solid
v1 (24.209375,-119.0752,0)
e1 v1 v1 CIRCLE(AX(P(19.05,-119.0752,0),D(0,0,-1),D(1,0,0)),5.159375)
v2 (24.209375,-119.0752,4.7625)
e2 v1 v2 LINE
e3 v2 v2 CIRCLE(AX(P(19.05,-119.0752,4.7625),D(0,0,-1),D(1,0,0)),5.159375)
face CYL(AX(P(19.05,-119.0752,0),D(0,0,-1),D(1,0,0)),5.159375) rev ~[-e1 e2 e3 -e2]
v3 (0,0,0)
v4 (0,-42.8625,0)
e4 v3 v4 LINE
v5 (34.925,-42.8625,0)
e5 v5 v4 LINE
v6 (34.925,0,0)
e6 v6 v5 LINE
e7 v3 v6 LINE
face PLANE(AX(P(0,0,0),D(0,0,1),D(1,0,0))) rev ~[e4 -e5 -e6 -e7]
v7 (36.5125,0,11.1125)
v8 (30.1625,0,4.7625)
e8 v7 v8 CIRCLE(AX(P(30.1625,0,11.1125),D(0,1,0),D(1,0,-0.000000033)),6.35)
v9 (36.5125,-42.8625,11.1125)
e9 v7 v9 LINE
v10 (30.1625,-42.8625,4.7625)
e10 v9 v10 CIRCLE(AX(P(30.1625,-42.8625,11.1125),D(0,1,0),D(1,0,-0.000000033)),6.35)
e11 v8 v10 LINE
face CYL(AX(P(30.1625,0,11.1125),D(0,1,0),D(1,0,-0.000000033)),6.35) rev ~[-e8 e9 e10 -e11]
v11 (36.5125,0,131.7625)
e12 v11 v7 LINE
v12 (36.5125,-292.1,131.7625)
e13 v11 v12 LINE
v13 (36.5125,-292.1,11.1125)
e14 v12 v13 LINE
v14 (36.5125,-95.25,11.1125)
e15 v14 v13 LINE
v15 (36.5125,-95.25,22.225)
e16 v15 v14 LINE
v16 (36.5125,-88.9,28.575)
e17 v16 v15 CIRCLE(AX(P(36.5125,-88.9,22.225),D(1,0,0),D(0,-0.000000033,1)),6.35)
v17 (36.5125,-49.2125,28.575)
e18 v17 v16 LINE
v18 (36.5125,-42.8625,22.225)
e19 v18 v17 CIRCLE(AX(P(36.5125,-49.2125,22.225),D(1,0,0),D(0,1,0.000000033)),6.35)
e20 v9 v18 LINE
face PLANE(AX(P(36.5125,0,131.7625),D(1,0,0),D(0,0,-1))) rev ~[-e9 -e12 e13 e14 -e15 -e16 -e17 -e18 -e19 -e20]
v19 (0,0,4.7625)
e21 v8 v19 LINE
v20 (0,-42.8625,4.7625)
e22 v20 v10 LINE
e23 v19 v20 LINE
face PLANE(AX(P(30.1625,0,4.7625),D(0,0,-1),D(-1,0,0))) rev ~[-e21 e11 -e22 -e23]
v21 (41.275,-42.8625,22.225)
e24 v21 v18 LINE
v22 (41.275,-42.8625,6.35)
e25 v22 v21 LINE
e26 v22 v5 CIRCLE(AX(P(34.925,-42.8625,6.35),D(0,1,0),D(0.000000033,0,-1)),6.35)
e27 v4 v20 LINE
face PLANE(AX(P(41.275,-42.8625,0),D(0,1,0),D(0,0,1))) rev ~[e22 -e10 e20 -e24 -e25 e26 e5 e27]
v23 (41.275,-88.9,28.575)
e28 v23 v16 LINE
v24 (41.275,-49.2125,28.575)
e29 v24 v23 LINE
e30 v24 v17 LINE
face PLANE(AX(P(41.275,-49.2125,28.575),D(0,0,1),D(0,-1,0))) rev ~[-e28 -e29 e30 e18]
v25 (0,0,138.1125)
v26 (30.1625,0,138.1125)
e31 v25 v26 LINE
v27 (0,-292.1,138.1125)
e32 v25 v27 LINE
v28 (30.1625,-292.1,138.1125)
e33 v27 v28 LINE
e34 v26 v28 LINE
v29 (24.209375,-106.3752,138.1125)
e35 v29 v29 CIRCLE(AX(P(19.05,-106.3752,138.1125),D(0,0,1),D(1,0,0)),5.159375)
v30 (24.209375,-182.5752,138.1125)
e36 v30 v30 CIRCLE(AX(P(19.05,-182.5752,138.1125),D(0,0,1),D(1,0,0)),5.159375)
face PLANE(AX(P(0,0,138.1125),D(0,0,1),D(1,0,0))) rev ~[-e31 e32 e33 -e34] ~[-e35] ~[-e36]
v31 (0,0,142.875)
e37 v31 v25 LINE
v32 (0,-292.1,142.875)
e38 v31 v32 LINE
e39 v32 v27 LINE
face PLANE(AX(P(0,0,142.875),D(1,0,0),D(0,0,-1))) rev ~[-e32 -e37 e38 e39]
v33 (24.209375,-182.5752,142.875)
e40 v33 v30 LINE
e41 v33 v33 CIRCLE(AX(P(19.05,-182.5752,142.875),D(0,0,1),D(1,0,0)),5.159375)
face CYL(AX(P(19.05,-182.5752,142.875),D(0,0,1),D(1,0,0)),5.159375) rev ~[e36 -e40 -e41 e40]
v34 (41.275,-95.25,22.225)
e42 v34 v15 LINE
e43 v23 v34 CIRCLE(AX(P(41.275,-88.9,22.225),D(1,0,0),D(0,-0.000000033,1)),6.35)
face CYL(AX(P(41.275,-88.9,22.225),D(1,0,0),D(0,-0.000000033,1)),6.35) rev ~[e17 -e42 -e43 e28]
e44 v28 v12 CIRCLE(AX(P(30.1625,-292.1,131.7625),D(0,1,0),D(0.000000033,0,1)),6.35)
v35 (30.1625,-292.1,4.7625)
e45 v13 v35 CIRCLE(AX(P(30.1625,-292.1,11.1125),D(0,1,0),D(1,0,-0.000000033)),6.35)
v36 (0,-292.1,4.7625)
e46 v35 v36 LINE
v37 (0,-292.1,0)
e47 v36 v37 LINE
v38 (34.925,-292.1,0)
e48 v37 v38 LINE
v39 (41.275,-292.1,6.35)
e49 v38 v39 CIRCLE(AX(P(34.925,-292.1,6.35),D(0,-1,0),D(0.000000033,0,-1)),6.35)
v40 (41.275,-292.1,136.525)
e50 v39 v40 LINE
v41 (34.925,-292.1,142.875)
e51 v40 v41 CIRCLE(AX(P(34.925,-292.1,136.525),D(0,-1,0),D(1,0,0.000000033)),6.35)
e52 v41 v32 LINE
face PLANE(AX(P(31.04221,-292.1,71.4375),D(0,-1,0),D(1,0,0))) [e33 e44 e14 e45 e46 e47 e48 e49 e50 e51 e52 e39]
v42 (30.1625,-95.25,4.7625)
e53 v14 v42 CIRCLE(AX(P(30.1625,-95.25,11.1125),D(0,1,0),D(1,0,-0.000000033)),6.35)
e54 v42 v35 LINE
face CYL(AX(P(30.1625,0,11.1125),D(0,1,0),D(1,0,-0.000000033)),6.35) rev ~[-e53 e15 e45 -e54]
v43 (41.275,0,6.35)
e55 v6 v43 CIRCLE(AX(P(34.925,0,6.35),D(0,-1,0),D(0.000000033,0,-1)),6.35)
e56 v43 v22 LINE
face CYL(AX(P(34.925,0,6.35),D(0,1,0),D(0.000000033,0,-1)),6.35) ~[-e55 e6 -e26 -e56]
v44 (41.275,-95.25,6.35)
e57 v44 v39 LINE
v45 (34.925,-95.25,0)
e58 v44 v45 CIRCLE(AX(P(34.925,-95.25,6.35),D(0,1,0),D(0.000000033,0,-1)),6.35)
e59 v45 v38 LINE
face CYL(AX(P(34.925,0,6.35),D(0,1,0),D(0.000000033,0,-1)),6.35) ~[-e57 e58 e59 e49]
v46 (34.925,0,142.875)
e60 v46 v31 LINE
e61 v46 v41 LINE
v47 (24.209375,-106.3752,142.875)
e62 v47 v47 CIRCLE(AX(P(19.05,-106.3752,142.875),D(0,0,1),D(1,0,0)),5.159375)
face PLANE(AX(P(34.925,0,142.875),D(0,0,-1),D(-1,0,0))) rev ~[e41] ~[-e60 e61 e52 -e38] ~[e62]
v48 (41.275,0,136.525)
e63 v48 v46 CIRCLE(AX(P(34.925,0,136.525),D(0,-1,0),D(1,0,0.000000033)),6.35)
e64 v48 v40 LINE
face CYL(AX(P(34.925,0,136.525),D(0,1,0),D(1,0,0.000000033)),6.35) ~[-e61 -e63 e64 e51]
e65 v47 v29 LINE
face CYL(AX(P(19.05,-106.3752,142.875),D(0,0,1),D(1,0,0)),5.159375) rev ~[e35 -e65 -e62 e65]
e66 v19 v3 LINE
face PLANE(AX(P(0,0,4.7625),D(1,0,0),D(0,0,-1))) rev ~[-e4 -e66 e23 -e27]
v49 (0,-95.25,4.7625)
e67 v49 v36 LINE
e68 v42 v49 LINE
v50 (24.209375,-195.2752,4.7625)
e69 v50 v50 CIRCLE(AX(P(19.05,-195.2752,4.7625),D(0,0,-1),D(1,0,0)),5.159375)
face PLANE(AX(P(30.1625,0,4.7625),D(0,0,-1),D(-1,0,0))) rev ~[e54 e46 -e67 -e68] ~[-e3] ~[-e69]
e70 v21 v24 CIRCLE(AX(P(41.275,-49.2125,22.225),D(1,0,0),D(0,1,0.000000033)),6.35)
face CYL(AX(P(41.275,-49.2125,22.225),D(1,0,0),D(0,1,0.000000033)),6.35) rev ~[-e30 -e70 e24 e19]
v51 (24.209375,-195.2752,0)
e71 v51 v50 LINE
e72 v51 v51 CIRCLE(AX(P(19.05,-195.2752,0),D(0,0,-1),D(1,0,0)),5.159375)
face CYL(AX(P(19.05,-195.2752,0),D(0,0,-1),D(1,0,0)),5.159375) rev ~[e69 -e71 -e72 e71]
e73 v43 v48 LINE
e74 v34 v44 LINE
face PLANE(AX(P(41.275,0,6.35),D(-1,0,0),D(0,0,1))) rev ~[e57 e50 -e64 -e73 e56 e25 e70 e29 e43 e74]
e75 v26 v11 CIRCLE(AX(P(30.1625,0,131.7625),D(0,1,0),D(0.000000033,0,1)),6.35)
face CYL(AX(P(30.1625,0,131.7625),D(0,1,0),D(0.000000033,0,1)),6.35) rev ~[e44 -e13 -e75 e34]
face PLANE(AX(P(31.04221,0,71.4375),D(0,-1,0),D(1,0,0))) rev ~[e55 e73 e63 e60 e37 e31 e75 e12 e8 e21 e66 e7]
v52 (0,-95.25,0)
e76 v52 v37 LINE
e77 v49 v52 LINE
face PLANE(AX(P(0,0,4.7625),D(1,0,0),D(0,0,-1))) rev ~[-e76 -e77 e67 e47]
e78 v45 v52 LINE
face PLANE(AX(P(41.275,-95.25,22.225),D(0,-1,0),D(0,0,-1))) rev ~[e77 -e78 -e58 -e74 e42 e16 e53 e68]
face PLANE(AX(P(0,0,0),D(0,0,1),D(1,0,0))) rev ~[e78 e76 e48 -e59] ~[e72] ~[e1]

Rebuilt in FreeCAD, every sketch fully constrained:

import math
import FreeCAD as App
import Part
import Sketcher
from FreeCAD import Vector
Q = App.Units.Quantity

doc = App.newDocument("Part")
body = doc.addObject("PartDesign::Body", "Body")

sketch1 = doc.addObject("Sketcher::SketchObject", "Sketch")
body.addObject(sketch1)
sketch1.AttachmentSupport = (doc.XZ_Plane, [""])
sketch1.MapMode = "FlatFace"
sketch1.addGeometry([
    Part.LineSegment(Vector(0, 4.8, 0), Vector(0, 0, 0)),
    Part.LineSegment(Vector(0, 0, 0), Vector(34.9, 0, 0)),
    Part.ArcOfCircle(Part.Circle(Vector(34.9, 6.4, 0), Vector(0, 0, 1), 6.4), math.radians(-90), math.radians(0)),
    Part.LineSegment(Vector(41.3, 6.3, 0), Vector(41.3, 136.5, 0)),
    Part.ArcOfCircle(Part.Circle(Vector(34.9, 136.5, 0), Vector(0, 0, 1), 6.4), math.radians(0), math.radians(90)),
    Part.LineSegment(Vector(34.9, 142.9, 0), Vector(0, 142.9, 0)),
    Part.LineSegment(Vector(0, 142.9, 0), Vector(0, 138.1, 0)),
    Part.LineSegment(Vector(0, 138.1, 0), Vector(30.2, 138.1, 0)),
    Part.ArcOfCircle(Part.Circle(Vector(30.2, 131.8, 0), Vector(0, 0, 1), 6.4), math.radians(0), math.radians(90)),
    Part.LineSegment(Vector(36.5, 131.8, 0), Vector(36.5, 11.1, 0)),
    Part.ArcOfCircle(Part.Circle(Vector(30.2, 11.1, 0), Vector(0, 0, 1), 6.4), math.radians(-90), math.radians(0)),
    Part.LineSegment(Vector(30.2, 4.8, 0), Vector(0, 4.8, 0)),
], False)
sketch1.addConstraint([
    Sketcher.Constraint("Coincident", 0, 2, 1, 1),
    Sketcher.Constraint("Tangent", 1, 2, 2, 1),
    Sketcher.Constraint("Tangent", 2, 2, 3, 1),
    Sketcher.Constraint("Tangent", 3, 2, 4, 1),
    Sketcher.Constraint("Tangent", 4, 2, 5, 1),
    Sketcher.Constraint("Coincident", 5, 2, 6, 1),
    Sketcher.Constraint("Coincident", 6, 2, 7, 1),
    Sketcher.Constraint("Tangent", 7, 2, 8, 2),
    Sketcher.Constraint("Tangent", 8, 1, 9, 1),
    Sketcher.Constraint("Tangent", 9, 2, 10, 2),
    Sketcher.Constraint("Tangent", 10, 1, 11, 1),
    Sketcher.Constraint("Coincident", 11, 2, 0, 1),
    Sketcher.Constraint("Vertical", 0),
    Sketcher.Constraint("Horizontal", 1),
    Sketcher.Constraint("Vertical", 3),
    Sketcher.Constraint("Horizontal", 5),
    Sketcher.Constraint("Vertical", 6),
    Sketcher.Constraint("Horizontal", 7),
    Sketcher.Constraint("Vertical", 9),
    Sketcher.Constraint("Horizontal", 11),
    Sketcher.Constraint("Coincident", 0, 2, -1, 1),
    Sketcher.Constraint("Equal", 2, 4),
    Sketcher.Constraint("Equal", 4, 8),
    Sketcher.Constraint("Equal", 8, 10),
    Sketcher.Constraint("PointOnObject", 5, 2, -2),
    Sketcher.Constraint("Equal", 0, 6),
    Sketcher.Constraint("Radius", 2, Q("0.25 in")),
    Sketcher.Constraint("DistanceY", 9, 2, 9, 1, Q("4.75 in")),
    Sketcher.Constraint("DistanceX", 1, 1, 1, 2, Q("1.375 in")),
    Sketcher.Constraint("DistanceX", 7, 1, 7, 2, Q("1.1875 in")),
    Sketcher.Constraint("DistanceY", 0, 2, 0, 1, Q("0.1875 in")),
])
pad1 = doc.addObject("PartDesign::Pad", "Pad")
body.addObject(pad1)
pad1.Profile = sketch1
pad1.Length = Q("11.5 in")

sketch2 = doc.addObject("Sketcher::SketchObject", "Sketch001")
body.addObject(sketch2)
sketch2.AttachmentSupport = (doc.YZ_Plane, [""])
sketch2.MapMode = "FlatFace"
sketch2.AttachmentOffset = App.Placement(Vector(0, 0, 1.625 * 25.4), App.Rotation())
sketch2.addGeometry([
    Part.LineSegment(Vector(-95, 22, 0), Vector(-95, 0, 0)),
    Part.LineSegment(Vector(-95, 0, 0), Vector(-43, 0, 0)),
    Part.LineSegment(Vector(-43, 0, 0), Vector(-43, 22, 0)),
    Part.ArcOfCircle(Part.Circle(Vector(-49, 22, 0), Vector(0, 0, 1), 6), math.radians(0), math.radians(90)),
    Part.LineSegment(Vector(-49, 29, 0), Vector(-89, 29, 0)),
    Part.ArcOfCircle(Part.Circle(Vector(-89, 22, 0), Vector(0, 0, 1), 6), math.radians(90), math.radians(180)),
], False)
sketch2.addConstraint([
    Sketcher.Constraint("Coincident", 0, 2, 1, 1),
    Sketcher.Constraint("Coincident", 1, 2, 2, 1),
    Sketcher.Constraint("Tangent", 2, 2, 3, 1),
    Sketcher.Constraint("Tangent", 3, 2, 4, 1),
    Sketcher.Constraint("Tangent", 4, 2, 5, 1),
    Sketcher.Constraint("Tangent", 5, 2, 0, 1),
    Sketcher.Constraint("Vertical", 0),
    Sketcher.Constraint("Horizontal", 1),
    Sketcher.Constraint("Vertical", 2),
    Sketcher.Constraint("Horizontal", 4),
    Sketcher.Constraint("Equal", 3, 5),
    Sketcher.Constraint("PointOnObject", 0, 2, -1),
    Sketcher.Constraint("Radius", 3, Q("0.25 in")),
    Sketcher.Constraint("DistanceX", 5, 3, -1, 1, Q("3.5 in")),
    Sketcher.Constraint("DistanceX", 1, 1, 1, 2, Q("2.0625 in")),
    Sketcher.Constraint("DistanceY", 0, 2, 0, 1, Q("0.875 in")),
])
pocket1 = doc.addObject("PartDesign::Pocket", "Pocket")
body.addObject(pocket1)
pocket1.Profile = sketch2
pocket1.Type = "ThroughAll"

sketch3 = doc.addObject("Sketcher::SketchObject", "Sketch002")
body.addObject(sketch3)
sketch3.AttachmentSupport = (doc.XY_Plane, [""])
sketch3.MapMode = "FlatFace"
sketch3.AttachmentOffset = App.Placement(Vector(0, 0, 5.625 * 25.4), App.Rotation())
sketch3.addGeometry([
    Part.Circle(Vector(19, -106, 0), Vector(0, 0, 1), 5),
    Part.Circle(Vector(19, -183, 0), Vector(0, 0, 1), 5),
], False)
sketch3.addConstraint([
    Sketcher.Constraint("Equal", 0, 1),
    Sketcher.Constraint("Vertical", 0, 3, 1, 3),
    Sketcher.Constraint("Diameter", 0, Q("0.40625 in")),
    Sketcher.Constraint("DistanceY", 1, 3, 0, 3, Q("3 in")),
    Sketcher.Constraint("DistanceX", -1, 1, 0, 3, Q("0.75 in")),
    Sketcher.Constraint("DistanceY", 0, 3, -1, 1, Q("4.188 in")),
])
pocket2 = doc.addObject("PartDesign::Pocket", "Pocket001")
body.addObject(pocket2)
pocket2.Profile = sketch3
pocket2.Length = Q("0.1875 in")

sketch4 = doc.addObject("Sketcher::SketchObject", "Sketch003")
body.addObject(sketch4)
sketch4.AttachmentSupport = (doc.XY_Plane, [""])
sketch4.MapMode = "FlatFace"
sketch4.addGeometry([
    Part.Circle(Vector(19, -119, 0), Vector(0, 0, 1), 5),
    Part.Circle(Vector(19, -195, 0), Vector(0, 0, 1), 5),
], False)
sketch4.addConstraint([
    Sketcher.Constraint("Equal", 0, 1),
    Sketcher.Constraint("Vertical", 0, 3, 1, 3),
    Sketcher.Constraint("Diameter", 0, Q("0.40625 in")),
    Sketcher.Constraint("DistanceY", 1, 3, 0, 3, Q("3 in")),
    Sketcher.Constraint("DistanceX", -1, 1, 0, 3, Q("0.75 in")),
    Sketcher.Constraint("DistanceY", 0, 3, -1, 1, Q("4.688 in")),
])
pocket3 = doc.addObject("PartDesign::Pocket", "Pocket002")
body.addObject(pocket3)
pocket3.Profile = sketch4
pocket3.Length = Q("0.1875 in")
pocket3.Reversed = True

doc.recompute()
